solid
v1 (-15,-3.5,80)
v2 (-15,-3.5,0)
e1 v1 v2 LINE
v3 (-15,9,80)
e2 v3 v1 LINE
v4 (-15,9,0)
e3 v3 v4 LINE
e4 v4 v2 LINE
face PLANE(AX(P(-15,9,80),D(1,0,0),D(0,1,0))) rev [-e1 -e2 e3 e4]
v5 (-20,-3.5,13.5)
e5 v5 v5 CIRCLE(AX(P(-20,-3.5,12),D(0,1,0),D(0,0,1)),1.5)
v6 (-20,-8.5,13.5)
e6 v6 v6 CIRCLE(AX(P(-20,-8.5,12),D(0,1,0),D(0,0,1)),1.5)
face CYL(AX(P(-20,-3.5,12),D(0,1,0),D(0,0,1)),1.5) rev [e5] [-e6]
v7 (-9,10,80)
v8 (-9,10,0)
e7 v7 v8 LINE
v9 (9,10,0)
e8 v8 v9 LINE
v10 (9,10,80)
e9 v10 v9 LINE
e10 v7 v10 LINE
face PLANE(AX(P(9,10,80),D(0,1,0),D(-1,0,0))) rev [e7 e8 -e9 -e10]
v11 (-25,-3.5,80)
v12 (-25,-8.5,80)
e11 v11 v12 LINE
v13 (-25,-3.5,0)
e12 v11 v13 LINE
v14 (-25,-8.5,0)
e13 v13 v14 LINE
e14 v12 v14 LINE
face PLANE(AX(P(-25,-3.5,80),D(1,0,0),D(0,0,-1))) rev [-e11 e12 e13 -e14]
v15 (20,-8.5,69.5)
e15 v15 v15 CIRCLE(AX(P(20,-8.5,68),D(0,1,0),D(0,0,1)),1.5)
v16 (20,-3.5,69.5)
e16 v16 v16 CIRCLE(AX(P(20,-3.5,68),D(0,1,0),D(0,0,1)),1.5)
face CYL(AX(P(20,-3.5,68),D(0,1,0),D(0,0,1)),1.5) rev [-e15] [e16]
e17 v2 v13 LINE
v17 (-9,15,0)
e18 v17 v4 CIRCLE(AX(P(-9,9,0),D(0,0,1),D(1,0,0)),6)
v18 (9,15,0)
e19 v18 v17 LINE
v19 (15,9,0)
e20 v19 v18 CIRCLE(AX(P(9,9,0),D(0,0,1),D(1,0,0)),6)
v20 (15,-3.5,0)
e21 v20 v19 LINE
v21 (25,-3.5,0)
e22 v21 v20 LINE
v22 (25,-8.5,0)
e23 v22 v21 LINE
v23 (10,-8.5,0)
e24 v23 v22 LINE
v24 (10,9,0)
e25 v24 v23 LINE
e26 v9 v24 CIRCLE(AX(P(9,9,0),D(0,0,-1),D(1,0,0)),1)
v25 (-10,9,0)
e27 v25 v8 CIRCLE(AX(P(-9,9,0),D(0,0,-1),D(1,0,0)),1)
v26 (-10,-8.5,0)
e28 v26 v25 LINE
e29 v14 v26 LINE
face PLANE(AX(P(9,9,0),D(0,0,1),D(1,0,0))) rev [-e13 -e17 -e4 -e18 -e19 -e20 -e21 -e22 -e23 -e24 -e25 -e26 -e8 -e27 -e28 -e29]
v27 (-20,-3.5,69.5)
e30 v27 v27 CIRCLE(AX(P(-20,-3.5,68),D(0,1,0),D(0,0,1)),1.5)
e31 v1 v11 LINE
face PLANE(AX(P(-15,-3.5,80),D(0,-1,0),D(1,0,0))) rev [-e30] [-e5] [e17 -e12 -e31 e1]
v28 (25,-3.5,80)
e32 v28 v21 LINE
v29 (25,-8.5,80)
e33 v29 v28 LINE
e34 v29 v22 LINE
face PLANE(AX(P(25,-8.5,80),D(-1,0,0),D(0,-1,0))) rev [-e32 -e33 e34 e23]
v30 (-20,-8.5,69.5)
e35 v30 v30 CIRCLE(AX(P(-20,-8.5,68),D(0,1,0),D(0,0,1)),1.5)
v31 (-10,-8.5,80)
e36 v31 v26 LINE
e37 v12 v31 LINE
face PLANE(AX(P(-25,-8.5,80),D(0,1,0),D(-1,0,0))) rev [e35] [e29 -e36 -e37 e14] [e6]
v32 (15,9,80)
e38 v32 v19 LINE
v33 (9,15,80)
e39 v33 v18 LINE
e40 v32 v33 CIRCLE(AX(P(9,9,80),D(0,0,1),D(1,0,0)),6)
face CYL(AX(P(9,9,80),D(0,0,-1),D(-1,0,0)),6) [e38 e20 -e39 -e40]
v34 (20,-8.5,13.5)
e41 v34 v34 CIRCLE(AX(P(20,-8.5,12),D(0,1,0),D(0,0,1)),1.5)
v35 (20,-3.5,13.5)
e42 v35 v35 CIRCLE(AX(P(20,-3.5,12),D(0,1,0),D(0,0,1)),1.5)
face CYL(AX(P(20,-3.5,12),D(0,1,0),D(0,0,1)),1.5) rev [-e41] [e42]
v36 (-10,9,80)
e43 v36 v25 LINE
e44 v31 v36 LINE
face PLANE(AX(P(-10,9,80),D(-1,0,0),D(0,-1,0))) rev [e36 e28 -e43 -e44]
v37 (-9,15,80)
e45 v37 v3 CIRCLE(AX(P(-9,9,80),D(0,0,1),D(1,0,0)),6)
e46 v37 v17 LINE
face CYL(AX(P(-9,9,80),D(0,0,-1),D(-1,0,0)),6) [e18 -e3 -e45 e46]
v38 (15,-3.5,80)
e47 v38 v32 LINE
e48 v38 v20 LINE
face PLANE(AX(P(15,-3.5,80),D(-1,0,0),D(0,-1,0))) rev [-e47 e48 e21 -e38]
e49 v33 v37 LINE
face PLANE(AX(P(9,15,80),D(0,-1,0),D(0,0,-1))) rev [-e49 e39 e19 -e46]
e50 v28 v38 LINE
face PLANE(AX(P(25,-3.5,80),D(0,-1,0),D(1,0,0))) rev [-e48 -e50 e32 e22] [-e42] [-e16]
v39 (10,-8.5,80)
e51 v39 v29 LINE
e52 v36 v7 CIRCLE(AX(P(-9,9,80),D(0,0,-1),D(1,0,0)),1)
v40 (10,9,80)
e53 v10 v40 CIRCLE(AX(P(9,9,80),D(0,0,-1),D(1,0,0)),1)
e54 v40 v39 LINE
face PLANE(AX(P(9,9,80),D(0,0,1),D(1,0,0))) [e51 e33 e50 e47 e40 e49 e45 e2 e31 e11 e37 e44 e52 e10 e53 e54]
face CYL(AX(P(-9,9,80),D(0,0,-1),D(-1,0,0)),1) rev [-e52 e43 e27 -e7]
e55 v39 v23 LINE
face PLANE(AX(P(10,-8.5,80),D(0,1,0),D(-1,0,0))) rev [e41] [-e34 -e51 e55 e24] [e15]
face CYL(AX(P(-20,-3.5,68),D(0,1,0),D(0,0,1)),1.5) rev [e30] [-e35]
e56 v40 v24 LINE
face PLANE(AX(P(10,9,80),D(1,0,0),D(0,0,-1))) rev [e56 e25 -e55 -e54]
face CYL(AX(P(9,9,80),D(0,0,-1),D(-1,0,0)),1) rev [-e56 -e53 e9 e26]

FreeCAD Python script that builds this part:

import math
import FreeCAD as App
import Part
import Sketcher

V = App.Vector
Q = App.Units.Quantity

doc = App.newDocument("Part")
body = doc.addObject("PartDesign::Body", "Body")

sketch1 = body.newObject("Sketcher::SketchObject", "Sketch")
sketch1.AttachmentSupport = (doc.getObject("XY_Plane"), [""])
sketch1.MapMode = "FlatFace"
sketch1.addGeometry([
    Part.LineSegment(V(9, 15, 0), V(-9, 15, 0)),
    Part.ArcOfCircle(Part.Circle(V(-9, 9, 0), V(0, 0, 1), 6), math.radians(90), math.radians(180)),
    Part.LineSegment(V(-15, 9, 0), V(-15, -3.5, 0)),
    Part.LineSegment(V(-15, -3.5, 0), V(-25, -3.5, 0)),
    Part.LineSegment(V(-25, -3.5, 0), V(-25, -8.5, 0)),
    Part.LineSegment(V(-25, -8.5, 0), V(-10, -8.5, 0)),
    Part.LineSegment(V(-10, -8.5, 0), V(-10, 9, 0)),
    Part.ArcOfCircle(Part.Circle(V(-9, 9, 0), V(0, 0, 1), 1), math.radians(90), math.radians(180)),
    Part.LineSegment(V(-9, 10, 0), V(9, 10, 0)),
    Part.ArcOfCircle(Part.Circle(V(9, 9, 0), V(0, 0, 1), 1), math.radians(0), math.radians(90)),
    Part.LineSegment(V(10, 9, 0), V(10, -8.5, 0)),
    Part.LineSegment(V(10, -8.5, 0), V(25, -8.5, 0)),
    Part.LineSegment(V(25, -8.5, 0), V(25, -3.5, 0)),
    Part.LineSegment(V(25, -3.5, 0), V(15, -3.5, 0)),
    Part.LineSegment(V(15, -3.5, 0), V(15, 9, 0)),
    Part.ArcOfCircle(Part.Circle(V(9, 9, 0), V(0, 0, 1), 6), math.radians(0), math.radians(90)),
], False)
sketch1.addConstraint([
    Sketcher.Constraint("Tangent", 0, 2, 1, 1),
    Sketcher.Constraint("Tangent", 1, 2, 2, 1),
    Sketcher.Constraint("Coincident", 2, 2, 3, 1),
    Sketcher.Constraint("Coincident", 3, 2, 4, 1),
    Sketcher.Constraint("Coincident", 4, 2, 5, 1),
    Sketcher.Constraint("Coincident", 5, 2, 6, 1),
    Sketcher.Constraint("Tangent", 6, 2, 7, 2),
    Sketcher.Constraint("Tangent", 7, 1, 8, 1),
    Sketcher.Constraint("Tangent", 8, 2, 9, 2),
    Sketcher.Constraint("Tangent", 9, 1, 10, 1),
    Sketcher.Constraint("Coincident", 10, 2, 11, 1),
    Sketcher.Constraint("Coincident", 11, 2, 12, 1),
    Sketcher.Constraint("Coincident", 12, 2, 13, 1),
    Sketcher.Constraint("Coincident", 13, 2, 14, 1),
    Sketcher.Constraint("Tangent", 14, 2, 15, 1),
    Sketcher.Constraint("Tangent", 15, 2, 0, 1),
    Sketcher.Constraint("Horizontal", 0),
    Sketcher.Constraint("Vertical", 2),
    Sketcher.Constraint("Horizontal", 3),
    Sketcher.Constraint("Vertical", 4),
    Sketcher.Constraint("Horizontal", 5),
    Sketcher.Constraint("Vertical", 6),
    Sketcher.Constraint("Horizontal", 8),
    Sketcher.Constraint("Vertical", 10),
    Sketcher.Constraint("Horizontal", 11),
    Sketcher.Constraint("Vertical", 12),
    Sketcher.Constraint("Horizontal", 13),
    Sketcher.Constraint("Vertical", 14),
    Sketcher.Constraint("Coincident", 7, 3, 1, 3),
    Sketcher.Constraint("Coincident", 15, 3, 9, 3),
    Sketcher.Constraint("Equal", 7, 9),
    Sketcher.Constraint("Symmetric", 5, 2, 10, 2, -2),
    Sketcher.Constraint("Symmetric", 3, 2, 12, 2, -2),
    Sketcher.Constraint("Radius", 1, Q("6 mm")),
    Sketcher.Constraint("Radius", 7, Q("1 mm")),
    Sketcher.Constraint("DistanceX", 0, 2, 0, 1, Q("18 mm")),
    Sketcher.Constraint("DistanceX", 3, 2, 3, 1, Q("10 mm")),
    Sketcher.Constraint("DistanceY", 4, 2, 4, 1, Q("5 mm")),
    Sketcher.Constraint("DistanceY", 2, 2, 2, 1, Q("12.5 mm")),
    Sketcher.Constraint("DistanceY", -1, 1, 1, 3, Q("9 mm")),
])
pad1 = body.newObject("PartDesign::Pad", "Pad")
pad1.Profile = sketch1
pad1.Length = 80

sketch2 = body.newObject("Sketcher::SketchObject", "Sketch001")
sketch2.AttachmentSupport = (doc.getObject("XZ_Plane"), [""])
sketch2.MapMode = "FlatFace"
sketch2.AttachmentOffset = App.Placement(V(0, 0, 3.5), App.Rotation())
sketch2.addGeometry([
    Part.Circle(V(-20, 12, 0), V(0, 0, 1), 1.5),
    Part.Circle(V(-20, 68, 0), V(0, 0, 1), 1.5),
    Part.Circle(V(20, 12, 0), V(0, 0, 1), 1.5),
    Part.Circle(V(20, 68, 0), V(0, 0, 1), 1.5),
], False)
sketch2.addConstraint([
    Sketcher.Constraint("Equal", 0, 1),
    Sketcher.Constraint("Equal", 1, 2),
    Sketcher.Constraint("Equal", 2, 3),
    Sketcher.Constraint("Symmetric", 0, 3, 2, 3, -2),
    Sketcher.Constraint("Symmetric", 1, 3, 3, 3, -2),
    Sketcher.Constraint("Vertical", 0, 3, 1, 3),
    Sketcher.Constraint("Diameter", 0, Q("3 mm")),
    Sketcher.Constraint("DistanceX", 0, 3, -1, 1, Q("20 mm")),
    Sketcher.Constraint("DistanceY", -1, 1, 0, 3, Q("12 mm")),
    Sketcher.Constraint("DistanceY", -1, 1, 1, 3, Q("68 mm")),
])
doc.recompute()
hole = body.newObject("PartDesign::Hole", "Hole")
hole.Profile = sketch2
hole.ThreadType = "None"
hole.Diameter = 3
hole.DepthType = "ThroughAll"
hole.Reversed = True

doc.recompute()
